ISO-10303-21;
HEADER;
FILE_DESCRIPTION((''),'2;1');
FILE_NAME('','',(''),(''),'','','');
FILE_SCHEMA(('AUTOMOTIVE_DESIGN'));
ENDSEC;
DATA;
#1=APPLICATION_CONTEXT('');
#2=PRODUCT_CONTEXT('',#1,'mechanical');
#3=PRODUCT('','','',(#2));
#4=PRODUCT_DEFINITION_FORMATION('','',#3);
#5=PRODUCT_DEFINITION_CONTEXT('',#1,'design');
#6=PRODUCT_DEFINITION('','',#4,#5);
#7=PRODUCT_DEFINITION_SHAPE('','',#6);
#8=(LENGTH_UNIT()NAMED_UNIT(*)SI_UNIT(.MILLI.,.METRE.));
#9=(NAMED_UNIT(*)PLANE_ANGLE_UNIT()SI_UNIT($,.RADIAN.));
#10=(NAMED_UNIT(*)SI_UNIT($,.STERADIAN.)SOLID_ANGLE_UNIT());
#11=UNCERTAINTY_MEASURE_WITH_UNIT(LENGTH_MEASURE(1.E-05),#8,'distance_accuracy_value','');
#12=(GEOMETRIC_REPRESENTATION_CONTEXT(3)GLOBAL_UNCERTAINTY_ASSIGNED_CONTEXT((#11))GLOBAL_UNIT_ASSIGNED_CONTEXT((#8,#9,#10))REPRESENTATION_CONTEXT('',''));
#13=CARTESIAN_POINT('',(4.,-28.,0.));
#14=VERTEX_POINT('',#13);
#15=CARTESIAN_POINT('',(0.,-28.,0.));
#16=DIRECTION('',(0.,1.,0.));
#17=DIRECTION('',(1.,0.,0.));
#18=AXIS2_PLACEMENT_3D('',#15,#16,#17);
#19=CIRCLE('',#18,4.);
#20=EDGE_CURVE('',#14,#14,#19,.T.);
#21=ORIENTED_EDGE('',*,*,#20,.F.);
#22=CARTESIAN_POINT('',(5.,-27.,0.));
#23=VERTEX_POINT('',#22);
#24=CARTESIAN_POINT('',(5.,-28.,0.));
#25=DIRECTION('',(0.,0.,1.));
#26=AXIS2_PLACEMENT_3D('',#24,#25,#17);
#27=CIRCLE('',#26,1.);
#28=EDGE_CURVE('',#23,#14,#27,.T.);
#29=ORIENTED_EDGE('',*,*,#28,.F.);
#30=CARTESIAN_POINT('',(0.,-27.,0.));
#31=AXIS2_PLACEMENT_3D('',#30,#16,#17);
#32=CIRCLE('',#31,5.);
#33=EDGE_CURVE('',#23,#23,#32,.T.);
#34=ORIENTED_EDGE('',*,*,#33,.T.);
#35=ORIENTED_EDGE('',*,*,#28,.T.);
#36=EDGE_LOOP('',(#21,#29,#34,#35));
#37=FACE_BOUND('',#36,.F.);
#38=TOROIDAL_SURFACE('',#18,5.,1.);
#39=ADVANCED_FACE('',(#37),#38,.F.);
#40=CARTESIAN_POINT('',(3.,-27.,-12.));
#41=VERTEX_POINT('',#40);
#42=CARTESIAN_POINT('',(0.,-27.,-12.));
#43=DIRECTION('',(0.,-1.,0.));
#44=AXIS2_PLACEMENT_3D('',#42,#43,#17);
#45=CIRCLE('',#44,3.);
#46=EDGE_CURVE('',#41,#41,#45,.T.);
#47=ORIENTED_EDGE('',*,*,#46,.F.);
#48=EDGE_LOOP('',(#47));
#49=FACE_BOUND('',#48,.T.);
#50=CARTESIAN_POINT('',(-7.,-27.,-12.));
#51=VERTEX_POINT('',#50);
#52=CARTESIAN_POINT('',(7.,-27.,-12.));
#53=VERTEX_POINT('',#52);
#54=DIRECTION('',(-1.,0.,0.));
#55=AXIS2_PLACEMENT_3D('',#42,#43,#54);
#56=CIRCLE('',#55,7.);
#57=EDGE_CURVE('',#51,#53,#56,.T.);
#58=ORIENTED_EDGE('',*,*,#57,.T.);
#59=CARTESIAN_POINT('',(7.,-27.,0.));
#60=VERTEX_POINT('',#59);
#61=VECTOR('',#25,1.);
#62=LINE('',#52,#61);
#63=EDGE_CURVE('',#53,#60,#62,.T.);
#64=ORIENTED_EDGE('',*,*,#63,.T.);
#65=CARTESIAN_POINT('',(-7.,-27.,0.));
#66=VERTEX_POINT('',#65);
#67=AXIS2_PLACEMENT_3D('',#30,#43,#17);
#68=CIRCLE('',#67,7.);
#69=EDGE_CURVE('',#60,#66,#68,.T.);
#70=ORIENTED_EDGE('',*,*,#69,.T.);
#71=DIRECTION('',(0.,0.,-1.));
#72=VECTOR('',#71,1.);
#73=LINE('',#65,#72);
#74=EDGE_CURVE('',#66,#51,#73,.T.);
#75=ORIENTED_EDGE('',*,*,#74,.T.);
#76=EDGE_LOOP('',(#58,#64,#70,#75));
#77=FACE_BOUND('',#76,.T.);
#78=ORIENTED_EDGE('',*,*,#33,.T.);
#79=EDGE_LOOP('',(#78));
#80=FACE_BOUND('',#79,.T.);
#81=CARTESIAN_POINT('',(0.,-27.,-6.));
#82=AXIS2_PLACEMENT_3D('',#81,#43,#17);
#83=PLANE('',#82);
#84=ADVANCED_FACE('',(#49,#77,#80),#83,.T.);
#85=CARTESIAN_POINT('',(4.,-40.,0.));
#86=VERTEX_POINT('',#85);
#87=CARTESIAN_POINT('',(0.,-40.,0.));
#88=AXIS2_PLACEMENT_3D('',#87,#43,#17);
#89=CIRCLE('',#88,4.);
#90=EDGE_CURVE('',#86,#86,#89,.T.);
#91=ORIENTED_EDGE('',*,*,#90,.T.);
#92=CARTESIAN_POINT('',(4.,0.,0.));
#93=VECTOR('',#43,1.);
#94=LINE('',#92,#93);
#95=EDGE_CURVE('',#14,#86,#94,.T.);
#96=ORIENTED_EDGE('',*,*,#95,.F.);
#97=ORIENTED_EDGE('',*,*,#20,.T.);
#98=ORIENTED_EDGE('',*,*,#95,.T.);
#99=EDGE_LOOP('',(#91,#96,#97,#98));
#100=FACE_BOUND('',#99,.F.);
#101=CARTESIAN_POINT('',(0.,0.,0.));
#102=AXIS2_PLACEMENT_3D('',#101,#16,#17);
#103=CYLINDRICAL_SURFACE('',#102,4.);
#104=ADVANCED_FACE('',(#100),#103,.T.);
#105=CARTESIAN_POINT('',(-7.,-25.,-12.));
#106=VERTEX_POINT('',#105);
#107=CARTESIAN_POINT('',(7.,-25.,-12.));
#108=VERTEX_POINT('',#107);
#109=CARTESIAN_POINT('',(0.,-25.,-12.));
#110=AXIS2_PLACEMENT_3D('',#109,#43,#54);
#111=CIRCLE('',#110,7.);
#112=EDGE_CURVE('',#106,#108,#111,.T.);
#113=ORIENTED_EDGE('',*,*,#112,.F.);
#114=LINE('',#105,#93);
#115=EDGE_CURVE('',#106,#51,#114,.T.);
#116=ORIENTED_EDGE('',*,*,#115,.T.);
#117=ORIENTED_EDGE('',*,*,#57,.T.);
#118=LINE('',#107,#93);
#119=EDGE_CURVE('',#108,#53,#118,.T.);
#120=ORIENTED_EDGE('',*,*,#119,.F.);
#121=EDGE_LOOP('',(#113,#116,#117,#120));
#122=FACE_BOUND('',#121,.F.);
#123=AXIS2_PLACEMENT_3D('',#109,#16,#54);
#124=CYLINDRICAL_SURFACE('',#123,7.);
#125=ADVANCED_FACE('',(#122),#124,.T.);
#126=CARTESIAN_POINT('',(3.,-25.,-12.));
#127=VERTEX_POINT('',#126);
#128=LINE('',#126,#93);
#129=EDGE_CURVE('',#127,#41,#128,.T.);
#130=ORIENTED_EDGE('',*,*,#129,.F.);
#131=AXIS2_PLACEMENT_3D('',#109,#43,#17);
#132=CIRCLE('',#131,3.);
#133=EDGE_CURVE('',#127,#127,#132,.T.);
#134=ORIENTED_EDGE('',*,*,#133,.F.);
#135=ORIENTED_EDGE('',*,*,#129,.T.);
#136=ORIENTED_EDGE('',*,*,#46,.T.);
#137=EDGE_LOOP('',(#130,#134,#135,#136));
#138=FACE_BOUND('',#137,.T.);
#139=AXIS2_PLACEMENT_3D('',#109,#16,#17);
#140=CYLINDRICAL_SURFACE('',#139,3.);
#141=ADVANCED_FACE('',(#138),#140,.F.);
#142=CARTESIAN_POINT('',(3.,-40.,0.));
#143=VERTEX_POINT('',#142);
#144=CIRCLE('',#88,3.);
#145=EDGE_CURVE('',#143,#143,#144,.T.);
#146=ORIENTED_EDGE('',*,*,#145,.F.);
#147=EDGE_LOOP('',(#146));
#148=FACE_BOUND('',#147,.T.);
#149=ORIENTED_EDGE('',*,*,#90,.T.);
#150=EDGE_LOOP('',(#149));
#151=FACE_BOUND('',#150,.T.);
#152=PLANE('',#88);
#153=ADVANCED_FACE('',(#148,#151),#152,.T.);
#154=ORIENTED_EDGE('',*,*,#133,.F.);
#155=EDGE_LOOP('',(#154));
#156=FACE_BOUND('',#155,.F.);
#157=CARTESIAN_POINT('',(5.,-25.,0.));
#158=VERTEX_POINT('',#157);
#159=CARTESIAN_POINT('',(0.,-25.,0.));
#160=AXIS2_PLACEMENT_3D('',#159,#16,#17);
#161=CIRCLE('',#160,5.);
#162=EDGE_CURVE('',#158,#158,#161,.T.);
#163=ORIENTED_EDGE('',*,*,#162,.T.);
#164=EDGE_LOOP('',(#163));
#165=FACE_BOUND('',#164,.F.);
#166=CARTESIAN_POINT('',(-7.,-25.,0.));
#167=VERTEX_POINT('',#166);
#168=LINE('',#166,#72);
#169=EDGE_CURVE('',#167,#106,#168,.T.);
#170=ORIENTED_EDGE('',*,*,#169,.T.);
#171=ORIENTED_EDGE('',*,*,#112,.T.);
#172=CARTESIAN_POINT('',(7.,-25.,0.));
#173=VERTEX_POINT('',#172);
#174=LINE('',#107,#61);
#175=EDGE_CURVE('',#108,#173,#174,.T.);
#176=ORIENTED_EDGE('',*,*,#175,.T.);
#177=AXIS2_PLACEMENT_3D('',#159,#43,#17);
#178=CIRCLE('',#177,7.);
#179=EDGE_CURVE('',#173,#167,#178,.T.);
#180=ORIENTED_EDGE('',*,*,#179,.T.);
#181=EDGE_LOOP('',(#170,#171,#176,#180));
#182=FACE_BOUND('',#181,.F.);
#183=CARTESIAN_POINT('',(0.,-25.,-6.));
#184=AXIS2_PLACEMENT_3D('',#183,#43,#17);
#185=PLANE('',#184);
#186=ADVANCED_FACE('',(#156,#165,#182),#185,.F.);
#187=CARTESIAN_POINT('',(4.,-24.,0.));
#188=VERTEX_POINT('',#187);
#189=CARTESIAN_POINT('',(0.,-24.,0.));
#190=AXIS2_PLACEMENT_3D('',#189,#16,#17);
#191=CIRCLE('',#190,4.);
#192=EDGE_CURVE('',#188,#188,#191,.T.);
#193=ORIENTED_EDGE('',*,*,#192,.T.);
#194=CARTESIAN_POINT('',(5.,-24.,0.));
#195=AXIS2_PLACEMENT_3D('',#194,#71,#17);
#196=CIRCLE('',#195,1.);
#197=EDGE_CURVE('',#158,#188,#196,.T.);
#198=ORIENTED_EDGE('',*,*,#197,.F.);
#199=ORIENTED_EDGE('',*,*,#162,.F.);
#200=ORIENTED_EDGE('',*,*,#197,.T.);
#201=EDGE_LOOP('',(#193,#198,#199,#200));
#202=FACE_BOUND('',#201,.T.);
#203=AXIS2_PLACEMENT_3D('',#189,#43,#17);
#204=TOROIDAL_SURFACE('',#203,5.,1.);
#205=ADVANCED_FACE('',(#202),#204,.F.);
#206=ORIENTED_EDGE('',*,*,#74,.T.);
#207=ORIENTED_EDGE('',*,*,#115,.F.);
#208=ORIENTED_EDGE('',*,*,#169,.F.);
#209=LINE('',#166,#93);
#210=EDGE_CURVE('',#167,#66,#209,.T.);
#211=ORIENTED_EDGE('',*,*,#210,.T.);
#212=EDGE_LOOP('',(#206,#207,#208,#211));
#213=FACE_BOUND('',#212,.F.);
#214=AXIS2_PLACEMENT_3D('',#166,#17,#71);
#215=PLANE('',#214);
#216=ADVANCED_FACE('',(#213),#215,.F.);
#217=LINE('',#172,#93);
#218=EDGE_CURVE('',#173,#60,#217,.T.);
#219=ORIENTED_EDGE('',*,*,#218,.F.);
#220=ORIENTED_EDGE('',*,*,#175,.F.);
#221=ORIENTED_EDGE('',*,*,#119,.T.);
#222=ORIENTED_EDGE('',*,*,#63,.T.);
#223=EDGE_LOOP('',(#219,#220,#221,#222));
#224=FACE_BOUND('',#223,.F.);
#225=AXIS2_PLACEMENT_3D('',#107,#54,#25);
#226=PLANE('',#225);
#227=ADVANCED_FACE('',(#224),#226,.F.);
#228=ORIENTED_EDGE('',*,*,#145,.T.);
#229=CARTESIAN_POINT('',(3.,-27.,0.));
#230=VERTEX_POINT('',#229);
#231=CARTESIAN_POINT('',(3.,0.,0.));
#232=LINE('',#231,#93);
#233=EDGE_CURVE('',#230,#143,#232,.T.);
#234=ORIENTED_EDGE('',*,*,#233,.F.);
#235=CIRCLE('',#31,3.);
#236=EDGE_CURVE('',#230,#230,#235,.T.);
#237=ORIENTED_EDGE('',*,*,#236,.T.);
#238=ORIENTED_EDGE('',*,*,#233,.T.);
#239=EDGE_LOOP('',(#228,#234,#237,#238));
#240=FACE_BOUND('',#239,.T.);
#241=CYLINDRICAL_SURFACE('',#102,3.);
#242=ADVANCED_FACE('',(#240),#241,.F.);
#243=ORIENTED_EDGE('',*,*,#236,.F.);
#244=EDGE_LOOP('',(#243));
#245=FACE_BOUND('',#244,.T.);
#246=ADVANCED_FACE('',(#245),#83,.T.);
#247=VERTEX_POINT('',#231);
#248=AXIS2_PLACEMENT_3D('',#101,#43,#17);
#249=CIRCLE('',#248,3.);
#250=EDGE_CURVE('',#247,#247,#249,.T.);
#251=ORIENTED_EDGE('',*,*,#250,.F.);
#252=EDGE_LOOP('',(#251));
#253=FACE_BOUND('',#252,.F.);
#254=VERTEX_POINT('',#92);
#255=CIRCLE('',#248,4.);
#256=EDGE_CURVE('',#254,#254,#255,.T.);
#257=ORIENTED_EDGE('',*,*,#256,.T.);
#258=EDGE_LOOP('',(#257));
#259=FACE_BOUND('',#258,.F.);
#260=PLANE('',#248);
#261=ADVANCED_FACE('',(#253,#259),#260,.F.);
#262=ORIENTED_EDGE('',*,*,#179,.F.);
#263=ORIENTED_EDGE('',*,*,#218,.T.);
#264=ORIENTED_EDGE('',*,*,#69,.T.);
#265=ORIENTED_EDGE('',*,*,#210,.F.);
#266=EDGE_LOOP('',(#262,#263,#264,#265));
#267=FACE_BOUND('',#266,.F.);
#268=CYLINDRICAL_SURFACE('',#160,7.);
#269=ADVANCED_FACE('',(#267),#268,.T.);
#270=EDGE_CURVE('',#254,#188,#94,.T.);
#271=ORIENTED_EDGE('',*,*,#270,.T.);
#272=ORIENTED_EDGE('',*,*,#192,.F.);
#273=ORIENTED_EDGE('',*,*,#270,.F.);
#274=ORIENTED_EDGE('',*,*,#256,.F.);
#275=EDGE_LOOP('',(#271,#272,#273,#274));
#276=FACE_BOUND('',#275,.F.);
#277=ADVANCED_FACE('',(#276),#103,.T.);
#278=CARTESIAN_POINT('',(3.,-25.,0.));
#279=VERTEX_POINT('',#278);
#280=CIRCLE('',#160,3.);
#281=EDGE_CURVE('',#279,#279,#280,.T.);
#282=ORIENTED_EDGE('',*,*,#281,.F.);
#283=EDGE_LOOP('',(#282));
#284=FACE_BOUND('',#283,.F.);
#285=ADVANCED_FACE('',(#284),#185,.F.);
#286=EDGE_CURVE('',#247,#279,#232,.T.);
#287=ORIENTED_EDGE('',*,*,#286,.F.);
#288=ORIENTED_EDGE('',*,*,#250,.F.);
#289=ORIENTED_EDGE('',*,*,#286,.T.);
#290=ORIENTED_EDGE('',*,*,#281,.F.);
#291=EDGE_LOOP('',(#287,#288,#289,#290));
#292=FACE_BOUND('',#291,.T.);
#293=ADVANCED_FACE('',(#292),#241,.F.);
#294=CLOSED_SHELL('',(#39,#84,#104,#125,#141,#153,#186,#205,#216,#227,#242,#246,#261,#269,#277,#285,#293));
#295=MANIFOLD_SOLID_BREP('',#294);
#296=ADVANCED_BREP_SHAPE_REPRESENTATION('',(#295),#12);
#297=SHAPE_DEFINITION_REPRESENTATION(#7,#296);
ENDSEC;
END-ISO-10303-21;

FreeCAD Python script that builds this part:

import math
import FreeCAD as App
import Part
import Sketcher

V = App.Vector
Q = App.Units.Quantity


def edges_at(feature, points):
    """Names of the edges that pass closest to the given points."""
    edges = feature.Shape.Edges
    near = lambda p: min(range(len(edges)), key=lambda i: edges[i].distToShape(Part.Vertex(*p))[0])
    return sorted({f"Edge{near(p) + 1}" for p in points})

doc = App.newDocument("Part")
params = doc.addObject("Spreadsheet::Sheet", "Params")
for row, (alias, value) in enumerate([
    ("sketch1_diameter", "8 mm"),
    ("sketch1_diameter2", "6 mm"),
    ("pad1_length", "40 mm"),
    ("sketch2_diameter", "6 mm"),
    ("sketch2_radius", "7 mm"),
    ("sketch2_height", "12 mm"),
    ("pad2_length", "2 mm"),
    ("fillet_radius", "1 mm"),
], start=1):
    params.set(f"A{row}", alias)
    params.set(f"B{row}", "=" + value)
    params.setAlias(f"B{row}", alias)

body = doc.addObject("PartDesign::Body", "Body")

sketch1 = body.newObject("Sketcher::SketchObject", "Sketch")
sketch1.AttachmentSupport = (doc.getObject("XZ_Plane"), [""])
sketch1.MapMode = "FlatFace"
sketch1.addGeometry([
    Part.Circle(V(0, 0, 0), V(0, 0, 1), 4),
    Part.Circle(V(0, 0, 0), V(0, 0, 1), 3),
], False)
sketch1.addConstraint([
    Sketcher.Constraint("Coincident", 0, 3, -1, 1),
    Sketcher.Constraint("Coincident", 1, 3, -1, 1),
    Sketcher.Constraint("Diameter", 0, Q("8 mm")),
    Sketcher.Constraint("Diameter", 1, Q("6 mm")),
])
sketch1.setExpression("Constraints[2]", "Params.sketch1_diameter")
sketch1.setExpression("Constraints[3]", "Params.sketch1_diameter2")
pad1 = body.newObject("PartDesign::Pad", "Pad")
pad1.Profile = sketch1
pad1.setExpression("Length", "Params.pad1_length")

sketch2 = body.newObject("Sketcher::SketchObject", "Sketch001")
sketch2.AttachmentSupport = (doc.getObject("XZ_Plane"), [""])
sketch2.MapMode = "FlatFace"
sketch2.AttachmentOffset = App.Placement(V(0, 0, 25), App.Rotation())
sketch2.addGeometry([
    Part.LineSegment(V(-7, 0, 0), V(-7, -12, 0)),
    Part.ArcOfCircle(Part.Circle(V(0, -12, 0), V(0, 0, 1), 7), math.radians(180), math.radians(360)),
    Part.LineSegment(V(7, -12, 0), V(7, 0, 0)),
    Part.ArcOfCircle(Part.Circle(V(0, 0, 0), V(0, 0, 1), 7), math.radians(0), math.radians(180)),
    Part.Circle(V(0, -12, 0), V(0, 0, 1), 3),
], False)
sketch2.addConstraint([
    Sketcher.Constraint("Tangent", 0, 2, 1, 1),
    Sketcher.Constraint("Tangent", 1, 2, 2, 1),
    Sketcher.Constraint("Tangent", 2, 2, 3, 1),
    Sketcher.Constraint("Tangent", 3, 2, 0, 1),
    Sketcher.Constraint("Vertical", 0),
    Sketcher.Constraint("Vertical", 2),
    Sketcher.Constraint("Coincident", 3, 3, -1, 1),
    Sketcher.Constraint("Coincident", 4, 3, 1, 3),
    Sketcher.Constraint("Diameter", 4, Q("6 mm")),
    Sketcher.Constraint("Radius", 1, Q("7 mm")),
    Sketcher.Constraint("DistanceY", 0, 2, 0, 1, Q("12 mm")),
])
sketch2.setExpression("Constraints[8]", "Params.sketch2_diameter")
sketch2.setExpression("Constraints[9]", "Params.sketch2_radius")
sketch2.setExpression("Constraints[10]", "Params.sketch2_height")
pad2 = body.newObject("PartDesign::Pad", "Pad001")
pad2.Profile = sketch2
pad2.setExpression("Length", "Params.pad2_length")
doc.recompute()

fillet = body.newObject("PartDesign::Fillet", "Fillet")
fillet.Base = (pad2, edges_at(pad2, [(-4, -27, 0), (-4, -25, 0)]))
fillet.setExpression("Radius", "Params.fillet_radius")

doc.recompute()
